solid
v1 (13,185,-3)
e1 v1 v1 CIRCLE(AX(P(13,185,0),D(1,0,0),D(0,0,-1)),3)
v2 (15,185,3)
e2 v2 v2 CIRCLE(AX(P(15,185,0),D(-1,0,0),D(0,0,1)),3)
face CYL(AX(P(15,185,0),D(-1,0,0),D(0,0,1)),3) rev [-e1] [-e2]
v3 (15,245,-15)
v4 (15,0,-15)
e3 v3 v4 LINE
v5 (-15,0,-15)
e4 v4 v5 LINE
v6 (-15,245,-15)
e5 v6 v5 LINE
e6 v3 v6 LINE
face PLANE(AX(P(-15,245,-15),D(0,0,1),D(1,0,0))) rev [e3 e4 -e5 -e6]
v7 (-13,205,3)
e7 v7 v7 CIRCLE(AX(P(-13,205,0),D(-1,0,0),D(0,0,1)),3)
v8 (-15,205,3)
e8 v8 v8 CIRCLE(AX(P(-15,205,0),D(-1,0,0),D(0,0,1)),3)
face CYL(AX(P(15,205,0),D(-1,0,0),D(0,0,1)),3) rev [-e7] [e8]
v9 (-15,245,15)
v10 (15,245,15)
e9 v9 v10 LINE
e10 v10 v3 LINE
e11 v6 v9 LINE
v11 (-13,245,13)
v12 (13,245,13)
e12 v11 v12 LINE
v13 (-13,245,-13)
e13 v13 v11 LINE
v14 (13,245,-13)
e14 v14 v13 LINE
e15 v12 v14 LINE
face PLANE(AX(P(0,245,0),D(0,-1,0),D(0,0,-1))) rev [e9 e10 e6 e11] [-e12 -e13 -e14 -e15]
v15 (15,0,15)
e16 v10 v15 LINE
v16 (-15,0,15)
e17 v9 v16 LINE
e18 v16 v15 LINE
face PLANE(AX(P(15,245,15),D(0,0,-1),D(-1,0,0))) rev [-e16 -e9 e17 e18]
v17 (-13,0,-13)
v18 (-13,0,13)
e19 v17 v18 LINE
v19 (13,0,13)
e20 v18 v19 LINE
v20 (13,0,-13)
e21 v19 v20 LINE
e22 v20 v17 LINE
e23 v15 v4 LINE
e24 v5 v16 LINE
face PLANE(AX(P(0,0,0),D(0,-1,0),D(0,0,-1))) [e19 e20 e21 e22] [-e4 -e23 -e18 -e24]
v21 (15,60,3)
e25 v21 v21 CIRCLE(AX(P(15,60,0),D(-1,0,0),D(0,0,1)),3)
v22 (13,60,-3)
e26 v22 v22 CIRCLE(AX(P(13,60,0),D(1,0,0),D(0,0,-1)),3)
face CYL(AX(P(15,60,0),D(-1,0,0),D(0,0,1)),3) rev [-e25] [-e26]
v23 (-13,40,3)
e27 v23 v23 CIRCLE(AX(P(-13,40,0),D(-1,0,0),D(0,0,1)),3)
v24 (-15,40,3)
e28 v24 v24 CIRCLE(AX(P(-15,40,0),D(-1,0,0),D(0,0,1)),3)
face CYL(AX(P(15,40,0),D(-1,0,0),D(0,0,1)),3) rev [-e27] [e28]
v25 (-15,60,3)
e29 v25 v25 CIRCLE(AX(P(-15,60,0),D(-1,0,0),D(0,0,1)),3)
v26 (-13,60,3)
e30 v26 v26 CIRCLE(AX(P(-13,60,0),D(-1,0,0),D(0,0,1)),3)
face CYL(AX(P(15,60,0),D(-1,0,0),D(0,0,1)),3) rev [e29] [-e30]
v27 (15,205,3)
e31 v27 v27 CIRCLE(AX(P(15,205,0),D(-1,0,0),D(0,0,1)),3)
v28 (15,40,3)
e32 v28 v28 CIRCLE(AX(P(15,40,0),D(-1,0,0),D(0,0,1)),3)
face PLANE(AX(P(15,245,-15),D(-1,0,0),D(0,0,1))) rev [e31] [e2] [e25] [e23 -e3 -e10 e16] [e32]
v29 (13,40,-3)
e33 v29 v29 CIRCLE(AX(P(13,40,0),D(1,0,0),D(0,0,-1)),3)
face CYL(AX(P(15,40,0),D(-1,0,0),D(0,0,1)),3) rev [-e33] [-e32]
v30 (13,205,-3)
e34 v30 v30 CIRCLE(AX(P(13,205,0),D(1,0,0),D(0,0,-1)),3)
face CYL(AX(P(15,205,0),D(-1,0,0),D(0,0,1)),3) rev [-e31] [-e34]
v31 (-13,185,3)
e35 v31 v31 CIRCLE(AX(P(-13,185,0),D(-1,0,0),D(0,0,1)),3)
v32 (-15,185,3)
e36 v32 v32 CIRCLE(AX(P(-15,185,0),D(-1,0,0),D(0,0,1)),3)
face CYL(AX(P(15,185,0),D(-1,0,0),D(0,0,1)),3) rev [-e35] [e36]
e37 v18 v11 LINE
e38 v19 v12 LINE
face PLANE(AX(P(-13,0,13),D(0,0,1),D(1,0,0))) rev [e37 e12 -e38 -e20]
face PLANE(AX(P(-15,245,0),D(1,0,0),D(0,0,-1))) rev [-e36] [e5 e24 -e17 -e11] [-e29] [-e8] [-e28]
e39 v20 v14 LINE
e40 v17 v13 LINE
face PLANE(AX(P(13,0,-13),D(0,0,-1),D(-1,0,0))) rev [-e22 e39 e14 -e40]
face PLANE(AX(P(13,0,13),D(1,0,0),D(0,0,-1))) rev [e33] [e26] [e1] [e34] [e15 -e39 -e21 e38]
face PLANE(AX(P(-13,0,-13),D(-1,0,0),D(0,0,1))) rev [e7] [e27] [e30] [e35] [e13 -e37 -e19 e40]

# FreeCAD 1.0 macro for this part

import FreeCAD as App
import Part
import Sketcher

V = App.Vector

doc = App.newDocument("Part")
body = doc.addObject("PartDesign::Body", "Body")

# Sketch on XZ plane
sketch1 = doc.addObject("Sketcher::SketchObject", "Sketch")
body.addObject(sketch1)
sketch1.AttachmentSupport = (doc.XZ_Plane, [""])
sketch1.MapMode = "FlatFace"
sketch1.addGeometry(Part.LineSegment(V(-15, -15, 0), V(-15, 15, 0)), False)
sketch1.addGeometry(Part.LineSegment(V(-15, 15, 0), V(15, 15, 0)), False)
sketch1.addGeometry(Part.LineSegment(V(15, 15, 0), V(15, -15, 0)), False)
sketch1.addGeometry(Part.LineSegment(V(15, -15, 0), V(-15, -15, 0)), False)
sketch1.addConstraint(Sketcher.Constraint("Coincident", 0, 2, 1, 1))
sketch1.addConstraint(Sketcher.Constraint("Coincident", 1, 2, 2, 1))
sketch1.addConstraint(Sketcher.Constraint("Coincident", 2, 2, 3, 1))
sketch1.addConstraint(Sketcher.Constraint("Coincident", 3, 2, 0, 1))
sketch1.addConstraint(Sketcher.Constraint("Vertical", 0))
sketch1.addConstraint(Sketcher.Constraint("Horizontal", 1))
sketch1.addConstraint(Sketcher.Constraint("Vertical", 2))
sketch1.addConstraint(Sketcher.Constraint("Horizontal", 3))
sketch1.addConstraint(Sketcher.Constraint("Symmetric", 0, 2, 2, 2, -1, 1))
sketch1.addConstraint(Sketcher.Constraint("Equal", 3, 0))
sketch1.addConstraint(Sketcher.Constraint("DistanceX", 1, 1, 1, 2, 30.0))
pad1 = doc.addObject("PartDesign::Pad", "Pad")
body.addObject(pad1)
pad1.Profile = sketch1
pad1.Length = 245
pad1.Reversed = True

# Sketch on XZ plane
sketch2 = doc.addObject("Sketcher::SketchObject", "Sketch001")
body.addObject(sketch2)
sketch2.AttachmentSupport = (doc.XZ_Plane, [""])
sketch2.MapMode = "FlatFace"
sketch2.AttachmentOffset = App.Placement(V(0, 0, -245), App.Rotation())
sketch2.addGeometry(Part.LineSegment(V(-13, -13, 0), V(-13, 13, 0)), False)
sketch2.addGeometry(Part.LineSegment(V(-13, 13, 0), V(13, 13, 0)), False)
sketch2.addGeometry(Part.LineSegment(V(13, 13, 0), V(13, -13, 0)), False)
sketch2.addGeometry(Part.LineSegment(V(13, -13, 0), V(-13, -13, 0)), False)
sketch2.addConstraint(Sketcher.Constraint("Coincident", 0, 2, 1, 1))
sketch2.addConstraint(Sketcher.Constraint("Coincident", 1, 2, 2, 1))
sketch2.addConstraint(Sketcher.Constraint("Coincident", 2, 2, 3, 1))
sketch2.addConstraint(Sketcher.Constraint("Coincident", 3, 2, 0, 1))
sketch2.addConstraint(Sketcher.Constraint("Vertical", 0))
sketch2.addConstraint(Sketcher.Constraint("Horizontal", 1))
sketch2.addConstraint(Sketcher.Constraint("Vertical", 2))
sketch2.addConstraint(Sketcher.Constraint("Horizontal", 3))
sketch2.addConstraint(Sketcher.Constraint("Symmetric", 0, 2, 2, 2, -1, 1))
sketch2.addConstraint(Sketcher.Constraint("Equal", 3, 0))
sketch2.addConstraint(Sketcher.Constraint("DistanceX", 1, 1, 1, 2, 26.0))
pocket1 = doc.addObject("PartDesign::Pocket", "Pocket")
body.addObject(pocket1)
pocket1.Profile = sketch2
pocket1.Length = 245
pocket1.Reversed = True

# Sketch on YZ plane
sketch3 = doc.addObject("Sketcher::SketchObject", "Sketch002")
body.addObject(sketch3)
sketch3.AttachmentSupport = (doc.YZ_Plane, [""])
sketch3.MapMode = "FlatFace"
sketch3.AttachmentOffset = App.Placement(V(0, 0, -15), App.Rotation())
sketch3.addGeometry(Part.Circle(V(205, 0, 0), V(0, 0, 1), 3), False)
sketch3.addGeometry(Part.Circle(V(185, 0, 0), V(0, 0, 1), 3), False)
sketch3.addGeometry(Part.Circle(V(60, 0, 0), V(0, 0, 1), 3), False)
sketch3.addGeometry(Part.Circle(V(40, 0, 0), V(0, 0, 1), 3), False)
sketch3.addConstraint(Sketcher.Constraint("Equal", 0, 1))
sketch3.addConstraint(Sketcher.Constraint("Equal", 1, 2))
sketch3.addConstraint(Sketcher.Constraint("Equal", 2, 3))
sketch3.addConstraint(Sketcher.Constraint("PointOnObject", 0, 3, -1))
sketch3.addConstraint(Sketcher.Constraint("PointOnObject", 1, 3, -1))
sketch3.addConstraint(Sketcher.Constraint("PointOnObject", 2, 3, -1))
sketch3.addConstraint(Sketcher.Constraint("PointOnObject", 3, 3, -1))
sketch3.addConstraint(Sketcher.Constraint("Diameter", 0, 6.0))
sketch3.addConstraint(Sketcher.Constraint("DistanceX", -1, 1, 0, 3, 205.0))
sketch3.addConstraint(Sketcher.Constraint("DistanceX", -1, 1, 1, 3, 185.0))
sketch3.addConstraint(Sketcher.Constraint("DistanceX", -1, 1, 2, 3, 60.0))
sketch3.addConstraint(Sketcher.Constraint("DistanceX", -1, 1, 3, 3, 40.0))
pocket2 = doc.addObject("PartDesign::Pocket", "Pocket001")
body.addObject(pocket2)
pocket2.Profile = sketch3
pocket2.Length = 30
pocket2.Reversed = True

doc.recompute()
